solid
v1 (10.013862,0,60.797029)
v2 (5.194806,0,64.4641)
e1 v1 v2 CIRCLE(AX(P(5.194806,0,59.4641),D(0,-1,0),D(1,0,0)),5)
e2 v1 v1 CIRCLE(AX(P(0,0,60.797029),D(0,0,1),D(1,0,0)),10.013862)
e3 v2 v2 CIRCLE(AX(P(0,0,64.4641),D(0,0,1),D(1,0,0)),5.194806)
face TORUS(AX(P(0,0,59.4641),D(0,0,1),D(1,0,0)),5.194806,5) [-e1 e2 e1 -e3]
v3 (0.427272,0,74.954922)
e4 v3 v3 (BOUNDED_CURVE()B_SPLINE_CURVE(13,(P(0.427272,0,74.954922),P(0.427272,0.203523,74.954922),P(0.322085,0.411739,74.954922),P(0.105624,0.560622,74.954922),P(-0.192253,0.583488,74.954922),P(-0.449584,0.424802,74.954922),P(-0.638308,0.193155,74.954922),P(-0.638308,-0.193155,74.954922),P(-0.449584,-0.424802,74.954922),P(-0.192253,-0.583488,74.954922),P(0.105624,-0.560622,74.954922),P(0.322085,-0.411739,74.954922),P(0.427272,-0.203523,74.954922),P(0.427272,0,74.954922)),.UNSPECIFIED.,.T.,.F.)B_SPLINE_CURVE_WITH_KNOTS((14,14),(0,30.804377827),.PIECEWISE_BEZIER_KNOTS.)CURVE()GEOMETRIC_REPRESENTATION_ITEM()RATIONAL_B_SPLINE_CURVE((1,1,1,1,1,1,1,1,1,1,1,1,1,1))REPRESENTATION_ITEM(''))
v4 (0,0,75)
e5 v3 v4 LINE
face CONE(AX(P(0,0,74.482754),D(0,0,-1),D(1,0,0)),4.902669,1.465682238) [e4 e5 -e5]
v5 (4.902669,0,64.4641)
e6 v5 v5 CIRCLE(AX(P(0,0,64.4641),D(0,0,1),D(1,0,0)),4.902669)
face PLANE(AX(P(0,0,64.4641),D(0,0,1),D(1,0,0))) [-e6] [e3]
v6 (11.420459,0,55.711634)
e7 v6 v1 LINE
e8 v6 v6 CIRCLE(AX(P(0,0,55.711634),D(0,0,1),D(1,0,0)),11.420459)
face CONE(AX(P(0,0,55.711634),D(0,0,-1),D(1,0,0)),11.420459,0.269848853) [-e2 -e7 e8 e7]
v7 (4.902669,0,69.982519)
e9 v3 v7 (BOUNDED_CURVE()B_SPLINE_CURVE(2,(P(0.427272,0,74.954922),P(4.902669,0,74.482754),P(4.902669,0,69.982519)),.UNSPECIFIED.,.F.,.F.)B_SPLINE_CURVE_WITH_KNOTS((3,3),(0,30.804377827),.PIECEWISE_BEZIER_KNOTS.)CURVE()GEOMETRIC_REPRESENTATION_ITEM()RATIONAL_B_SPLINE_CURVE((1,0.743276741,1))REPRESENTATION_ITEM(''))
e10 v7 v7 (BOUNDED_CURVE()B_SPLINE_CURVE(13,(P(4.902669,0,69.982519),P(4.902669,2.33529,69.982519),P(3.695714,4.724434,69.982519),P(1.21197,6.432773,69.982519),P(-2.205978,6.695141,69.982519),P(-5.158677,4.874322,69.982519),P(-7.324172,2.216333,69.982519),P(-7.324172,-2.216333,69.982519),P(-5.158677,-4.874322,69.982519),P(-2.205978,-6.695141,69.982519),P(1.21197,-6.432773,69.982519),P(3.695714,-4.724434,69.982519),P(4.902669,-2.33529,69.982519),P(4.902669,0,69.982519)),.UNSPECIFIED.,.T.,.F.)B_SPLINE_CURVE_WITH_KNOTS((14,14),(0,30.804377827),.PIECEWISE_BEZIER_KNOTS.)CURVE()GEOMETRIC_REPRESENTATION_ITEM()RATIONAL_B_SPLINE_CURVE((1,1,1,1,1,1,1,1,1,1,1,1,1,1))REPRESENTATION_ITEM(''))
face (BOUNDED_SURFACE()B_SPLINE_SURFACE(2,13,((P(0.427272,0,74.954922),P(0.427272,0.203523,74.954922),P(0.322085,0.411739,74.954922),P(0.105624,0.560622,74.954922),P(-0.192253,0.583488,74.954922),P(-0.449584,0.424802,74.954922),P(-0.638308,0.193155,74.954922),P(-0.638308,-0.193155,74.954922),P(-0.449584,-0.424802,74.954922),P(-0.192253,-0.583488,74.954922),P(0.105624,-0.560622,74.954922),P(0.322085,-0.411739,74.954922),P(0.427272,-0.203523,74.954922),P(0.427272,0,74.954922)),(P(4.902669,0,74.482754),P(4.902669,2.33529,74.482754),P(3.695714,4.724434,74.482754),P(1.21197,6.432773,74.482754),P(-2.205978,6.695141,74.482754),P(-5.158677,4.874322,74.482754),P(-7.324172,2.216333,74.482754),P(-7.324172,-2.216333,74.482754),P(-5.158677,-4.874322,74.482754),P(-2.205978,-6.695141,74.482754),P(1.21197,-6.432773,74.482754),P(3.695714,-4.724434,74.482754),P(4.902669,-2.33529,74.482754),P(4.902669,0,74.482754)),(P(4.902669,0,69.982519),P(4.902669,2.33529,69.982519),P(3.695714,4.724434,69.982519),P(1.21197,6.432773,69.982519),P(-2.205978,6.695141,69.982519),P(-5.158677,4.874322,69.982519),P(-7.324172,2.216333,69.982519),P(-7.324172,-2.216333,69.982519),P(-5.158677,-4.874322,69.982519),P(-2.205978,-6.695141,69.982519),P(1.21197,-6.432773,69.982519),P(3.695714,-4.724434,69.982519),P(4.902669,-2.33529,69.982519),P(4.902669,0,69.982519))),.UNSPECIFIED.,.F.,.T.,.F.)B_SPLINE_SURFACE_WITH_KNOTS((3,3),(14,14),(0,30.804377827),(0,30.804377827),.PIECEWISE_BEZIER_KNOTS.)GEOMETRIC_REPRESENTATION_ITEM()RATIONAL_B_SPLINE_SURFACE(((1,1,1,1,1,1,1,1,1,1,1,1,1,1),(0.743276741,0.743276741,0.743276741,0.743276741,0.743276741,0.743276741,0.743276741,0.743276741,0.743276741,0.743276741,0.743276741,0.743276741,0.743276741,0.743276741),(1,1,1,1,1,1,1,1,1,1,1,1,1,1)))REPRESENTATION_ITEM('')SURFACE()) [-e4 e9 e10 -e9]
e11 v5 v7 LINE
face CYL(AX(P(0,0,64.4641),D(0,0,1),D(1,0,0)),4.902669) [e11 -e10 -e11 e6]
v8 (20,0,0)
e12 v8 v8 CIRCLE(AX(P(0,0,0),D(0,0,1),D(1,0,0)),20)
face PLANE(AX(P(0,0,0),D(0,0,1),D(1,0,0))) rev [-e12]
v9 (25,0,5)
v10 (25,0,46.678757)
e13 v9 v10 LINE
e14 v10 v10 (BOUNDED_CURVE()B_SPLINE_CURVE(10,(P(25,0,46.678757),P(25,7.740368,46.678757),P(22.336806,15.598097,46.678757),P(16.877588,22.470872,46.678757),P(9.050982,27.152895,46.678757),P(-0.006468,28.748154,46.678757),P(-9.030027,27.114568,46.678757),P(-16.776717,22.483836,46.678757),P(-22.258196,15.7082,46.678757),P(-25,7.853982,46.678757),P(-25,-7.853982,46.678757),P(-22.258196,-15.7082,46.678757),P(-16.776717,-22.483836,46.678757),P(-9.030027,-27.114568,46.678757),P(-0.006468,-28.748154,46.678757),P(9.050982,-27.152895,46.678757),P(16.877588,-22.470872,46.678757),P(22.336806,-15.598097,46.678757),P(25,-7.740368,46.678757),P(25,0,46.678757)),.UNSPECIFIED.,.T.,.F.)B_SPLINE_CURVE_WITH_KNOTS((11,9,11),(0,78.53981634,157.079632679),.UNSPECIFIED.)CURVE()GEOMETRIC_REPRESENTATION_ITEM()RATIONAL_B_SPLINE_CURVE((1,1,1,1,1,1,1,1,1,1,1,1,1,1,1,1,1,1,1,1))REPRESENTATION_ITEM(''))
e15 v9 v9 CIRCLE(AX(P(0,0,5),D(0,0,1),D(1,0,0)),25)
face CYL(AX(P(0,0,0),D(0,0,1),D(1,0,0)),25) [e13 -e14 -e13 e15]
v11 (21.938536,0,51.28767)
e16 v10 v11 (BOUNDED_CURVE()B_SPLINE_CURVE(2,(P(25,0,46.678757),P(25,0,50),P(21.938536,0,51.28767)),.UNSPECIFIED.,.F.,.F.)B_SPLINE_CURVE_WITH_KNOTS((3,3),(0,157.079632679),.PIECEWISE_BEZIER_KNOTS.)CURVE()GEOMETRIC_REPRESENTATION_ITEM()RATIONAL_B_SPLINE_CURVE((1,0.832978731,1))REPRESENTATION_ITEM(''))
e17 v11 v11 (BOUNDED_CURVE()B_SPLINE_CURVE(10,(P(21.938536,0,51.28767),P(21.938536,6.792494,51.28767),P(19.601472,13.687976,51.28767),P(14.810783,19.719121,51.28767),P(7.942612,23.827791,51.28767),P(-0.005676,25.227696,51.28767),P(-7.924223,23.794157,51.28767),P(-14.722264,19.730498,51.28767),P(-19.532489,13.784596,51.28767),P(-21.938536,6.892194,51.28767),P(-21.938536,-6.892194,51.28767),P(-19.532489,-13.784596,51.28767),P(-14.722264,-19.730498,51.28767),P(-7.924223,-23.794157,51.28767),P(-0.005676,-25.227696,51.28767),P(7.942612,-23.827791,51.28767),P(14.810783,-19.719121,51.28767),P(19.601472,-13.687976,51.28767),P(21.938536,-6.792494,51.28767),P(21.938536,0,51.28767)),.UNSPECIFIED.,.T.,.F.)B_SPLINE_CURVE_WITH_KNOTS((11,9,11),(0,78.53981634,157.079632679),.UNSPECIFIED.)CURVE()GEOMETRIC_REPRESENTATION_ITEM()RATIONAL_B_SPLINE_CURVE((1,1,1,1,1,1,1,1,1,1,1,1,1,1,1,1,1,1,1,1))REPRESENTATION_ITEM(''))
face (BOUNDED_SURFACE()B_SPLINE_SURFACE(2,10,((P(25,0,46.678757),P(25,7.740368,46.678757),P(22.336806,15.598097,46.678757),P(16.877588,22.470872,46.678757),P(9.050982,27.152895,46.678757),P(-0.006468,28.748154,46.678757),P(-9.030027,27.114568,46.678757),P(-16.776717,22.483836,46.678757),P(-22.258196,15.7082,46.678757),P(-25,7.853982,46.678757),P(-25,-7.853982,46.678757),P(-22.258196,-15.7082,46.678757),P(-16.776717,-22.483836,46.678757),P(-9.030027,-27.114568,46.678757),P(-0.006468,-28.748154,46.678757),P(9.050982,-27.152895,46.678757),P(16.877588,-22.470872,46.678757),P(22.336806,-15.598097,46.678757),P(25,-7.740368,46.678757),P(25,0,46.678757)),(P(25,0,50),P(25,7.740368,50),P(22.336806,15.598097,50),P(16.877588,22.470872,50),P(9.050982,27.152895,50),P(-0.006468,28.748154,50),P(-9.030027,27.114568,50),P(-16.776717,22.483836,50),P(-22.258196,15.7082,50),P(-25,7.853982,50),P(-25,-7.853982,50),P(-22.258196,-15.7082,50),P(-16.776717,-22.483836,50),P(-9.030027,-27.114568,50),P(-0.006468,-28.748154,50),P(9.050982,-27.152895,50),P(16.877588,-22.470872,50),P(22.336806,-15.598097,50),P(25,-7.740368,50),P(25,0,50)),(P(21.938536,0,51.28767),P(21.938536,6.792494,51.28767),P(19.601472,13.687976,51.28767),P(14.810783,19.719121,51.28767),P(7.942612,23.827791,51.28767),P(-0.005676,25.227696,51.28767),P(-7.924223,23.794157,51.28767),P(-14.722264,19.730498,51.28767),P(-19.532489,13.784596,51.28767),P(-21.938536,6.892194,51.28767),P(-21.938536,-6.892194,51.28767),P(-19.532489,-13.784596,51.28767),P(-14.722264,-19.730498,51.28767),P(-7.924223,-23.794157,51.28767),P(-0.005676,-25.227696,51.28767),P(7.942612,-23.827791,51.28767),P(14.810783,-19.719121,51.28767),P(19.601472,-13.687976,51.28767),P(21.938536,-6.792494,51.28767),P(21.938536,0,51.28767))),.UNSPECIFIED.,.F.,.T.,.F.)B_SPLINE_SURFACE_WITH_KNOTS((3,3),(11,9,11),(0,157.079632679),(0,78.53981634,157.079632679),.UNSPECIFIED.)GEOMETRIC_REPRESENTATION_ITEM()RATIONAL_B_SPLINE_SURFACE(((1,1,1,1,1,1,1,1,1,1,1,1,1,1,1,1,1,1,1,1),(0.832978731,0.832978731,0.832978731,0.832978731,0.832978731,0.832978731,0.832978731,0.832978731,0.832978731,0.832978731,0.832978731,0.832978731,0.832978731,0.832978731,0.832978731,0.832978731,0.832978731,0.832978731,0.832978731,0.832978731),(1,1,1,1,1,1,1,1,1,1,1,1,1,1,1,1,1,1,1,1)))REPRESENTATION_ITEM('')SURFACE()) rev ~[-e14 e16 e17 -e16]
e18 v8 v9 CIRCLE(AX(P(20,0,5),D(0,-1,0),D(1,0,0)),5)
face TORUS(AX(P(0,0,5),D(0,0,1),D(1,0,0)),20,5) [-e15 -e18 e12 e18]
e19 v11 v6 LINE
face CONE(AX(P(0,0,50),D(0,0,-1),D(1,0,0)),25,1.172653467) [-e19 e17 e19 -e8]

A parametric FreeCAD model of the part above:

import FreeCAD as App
import Part
import Sketcher

V = App.Vector


def edges_at(feature, points):
    """Names of the edges that pass closest to the given points."""
    edges = feature.Shape.Edges
    near = lambda p: min(range(len(edges)), key=lambda i: edges[i].distToShape(Part.Vertex(*p))[0])
    return sorted({f"Edge{near(p) + 1}" for p in points})

doc = App.newDocument("Part")
body = doc.addObject("PartDesign::Body", "Body")

# Sketch on XZ plane
sketch1 = body.newObject("Sketcher::SketchObject", "Sketch")
sketch1.AttachmentSupport = (doc.getObject("XZ_Plane"), [""])
sketch1.MapMode = "FlatFace"
sketch1.addGeometry([
    Part.LineSegment(V(4.902669, 74.482754, 0), V(0, 75, 0)),  # 0
    Part.LineSegment(V(0, 75, 0), V(0, 0, 0)),  # 1
    Part.LineSegment(V(0, 0, 0), V(25, 0, 0)),  # 2
    Part.LineSegment(V(25, 0, 0), V(25, 50, 0)),  # 3
    Part.LineSegment(V(25, 50, 0), V(11.420459, 55.711634, 0)),  # 4
    Part.LineSegment(V(11.420459, 55.711634, 0), V(8.999567, 64.4641, 0)),  # 5
    Part.LineSegment(V(8.999567, 64.4641, 0), V(4.902669, 64.4641, 0)),  # 6
    Part.LineSegment(V(4.902669, 64.4641, 0), V(4.902669, 74.482754, 0)),  # 7
], False)
sketch1.addConstraint([
    Sketcher.Constraint("Coincident", 0, 2, 1, 1),
    Sketcher.Constraint("Coincident", 1, 2, 2, 1),
    Sketcher.Constraint("Coincident", 2, 2, 3, 1),
    Sketcher.Constraint("Coincident", 3, 2, 4, 1),
    Sketcher.Constraint("Coincident", 4, 2, 5, 1),
    Sketcher.Constraint("Coincident", 5, 2, 6, 1),
    Sketcher.Constraint("Coincident", 6, 2, 7, 1),
    Sketcher.Constraint("Coincident", 7, 2, 0, 1),
    Sketcher.Constraint("Vertical", 1),
    Sketcher.Constraint("Horizontal", 2),
    Sketcher.Constraint("Vertical", 3),
    Sketcher.Constraint("Horizontal", 6),
    Sketcher.Constraint("Vertical", 7),
    Sketcher.Constraint("Coincident", 1, 2, -1, 1),
    Sketcher.Constraint("DistanceX", 2, 1, 2, 2, 25.0),
    Sketcher.Constraint("DistanceY", 1, 2, 1, 1, 75.0),
    Sketcher.Constraint("DistanceY", 3, 1, 3, 2, 50.0),
    Sketcher.Constraint("DistanceX", 6, 2, 6, 1, 4.096898),
    Sketcher.Constraint("Distance", 5, 9.0811),
    Sketcher.Constraint("DistanceY", -1, 1, 5, 2, 64.4641),
    Sketcher.Constraint("Distance", 0, 4.929879),
    Sketcher.Constraint("DistanceY", 7, 1, 7, 2, 10.018654),
    Sketcher.Constraint("DistanceX", -1, 1, 4, 2, 11.420459),
])
revolution = body.newObject("PartDesign::Revolution", "Revolution")
revolution.Profile = sketch1
revolution.ReferenceAxis = (sketch1, ["V_Axis"])
revolution.Angle = 360
doc.recompute()

fillet = body.newObject("PartDesign::Fillet", "Fillet")
fillet.Base = (revolution, edges_at(revolution, [
    (-25, 0, 50),
    (-25, 0, 0),
    (25, 0, 25),
    (-9, 0, 64.464),
    (-4.903, 0, 74.483),
]))
fillet.Radius = 5

doc.recompute()
